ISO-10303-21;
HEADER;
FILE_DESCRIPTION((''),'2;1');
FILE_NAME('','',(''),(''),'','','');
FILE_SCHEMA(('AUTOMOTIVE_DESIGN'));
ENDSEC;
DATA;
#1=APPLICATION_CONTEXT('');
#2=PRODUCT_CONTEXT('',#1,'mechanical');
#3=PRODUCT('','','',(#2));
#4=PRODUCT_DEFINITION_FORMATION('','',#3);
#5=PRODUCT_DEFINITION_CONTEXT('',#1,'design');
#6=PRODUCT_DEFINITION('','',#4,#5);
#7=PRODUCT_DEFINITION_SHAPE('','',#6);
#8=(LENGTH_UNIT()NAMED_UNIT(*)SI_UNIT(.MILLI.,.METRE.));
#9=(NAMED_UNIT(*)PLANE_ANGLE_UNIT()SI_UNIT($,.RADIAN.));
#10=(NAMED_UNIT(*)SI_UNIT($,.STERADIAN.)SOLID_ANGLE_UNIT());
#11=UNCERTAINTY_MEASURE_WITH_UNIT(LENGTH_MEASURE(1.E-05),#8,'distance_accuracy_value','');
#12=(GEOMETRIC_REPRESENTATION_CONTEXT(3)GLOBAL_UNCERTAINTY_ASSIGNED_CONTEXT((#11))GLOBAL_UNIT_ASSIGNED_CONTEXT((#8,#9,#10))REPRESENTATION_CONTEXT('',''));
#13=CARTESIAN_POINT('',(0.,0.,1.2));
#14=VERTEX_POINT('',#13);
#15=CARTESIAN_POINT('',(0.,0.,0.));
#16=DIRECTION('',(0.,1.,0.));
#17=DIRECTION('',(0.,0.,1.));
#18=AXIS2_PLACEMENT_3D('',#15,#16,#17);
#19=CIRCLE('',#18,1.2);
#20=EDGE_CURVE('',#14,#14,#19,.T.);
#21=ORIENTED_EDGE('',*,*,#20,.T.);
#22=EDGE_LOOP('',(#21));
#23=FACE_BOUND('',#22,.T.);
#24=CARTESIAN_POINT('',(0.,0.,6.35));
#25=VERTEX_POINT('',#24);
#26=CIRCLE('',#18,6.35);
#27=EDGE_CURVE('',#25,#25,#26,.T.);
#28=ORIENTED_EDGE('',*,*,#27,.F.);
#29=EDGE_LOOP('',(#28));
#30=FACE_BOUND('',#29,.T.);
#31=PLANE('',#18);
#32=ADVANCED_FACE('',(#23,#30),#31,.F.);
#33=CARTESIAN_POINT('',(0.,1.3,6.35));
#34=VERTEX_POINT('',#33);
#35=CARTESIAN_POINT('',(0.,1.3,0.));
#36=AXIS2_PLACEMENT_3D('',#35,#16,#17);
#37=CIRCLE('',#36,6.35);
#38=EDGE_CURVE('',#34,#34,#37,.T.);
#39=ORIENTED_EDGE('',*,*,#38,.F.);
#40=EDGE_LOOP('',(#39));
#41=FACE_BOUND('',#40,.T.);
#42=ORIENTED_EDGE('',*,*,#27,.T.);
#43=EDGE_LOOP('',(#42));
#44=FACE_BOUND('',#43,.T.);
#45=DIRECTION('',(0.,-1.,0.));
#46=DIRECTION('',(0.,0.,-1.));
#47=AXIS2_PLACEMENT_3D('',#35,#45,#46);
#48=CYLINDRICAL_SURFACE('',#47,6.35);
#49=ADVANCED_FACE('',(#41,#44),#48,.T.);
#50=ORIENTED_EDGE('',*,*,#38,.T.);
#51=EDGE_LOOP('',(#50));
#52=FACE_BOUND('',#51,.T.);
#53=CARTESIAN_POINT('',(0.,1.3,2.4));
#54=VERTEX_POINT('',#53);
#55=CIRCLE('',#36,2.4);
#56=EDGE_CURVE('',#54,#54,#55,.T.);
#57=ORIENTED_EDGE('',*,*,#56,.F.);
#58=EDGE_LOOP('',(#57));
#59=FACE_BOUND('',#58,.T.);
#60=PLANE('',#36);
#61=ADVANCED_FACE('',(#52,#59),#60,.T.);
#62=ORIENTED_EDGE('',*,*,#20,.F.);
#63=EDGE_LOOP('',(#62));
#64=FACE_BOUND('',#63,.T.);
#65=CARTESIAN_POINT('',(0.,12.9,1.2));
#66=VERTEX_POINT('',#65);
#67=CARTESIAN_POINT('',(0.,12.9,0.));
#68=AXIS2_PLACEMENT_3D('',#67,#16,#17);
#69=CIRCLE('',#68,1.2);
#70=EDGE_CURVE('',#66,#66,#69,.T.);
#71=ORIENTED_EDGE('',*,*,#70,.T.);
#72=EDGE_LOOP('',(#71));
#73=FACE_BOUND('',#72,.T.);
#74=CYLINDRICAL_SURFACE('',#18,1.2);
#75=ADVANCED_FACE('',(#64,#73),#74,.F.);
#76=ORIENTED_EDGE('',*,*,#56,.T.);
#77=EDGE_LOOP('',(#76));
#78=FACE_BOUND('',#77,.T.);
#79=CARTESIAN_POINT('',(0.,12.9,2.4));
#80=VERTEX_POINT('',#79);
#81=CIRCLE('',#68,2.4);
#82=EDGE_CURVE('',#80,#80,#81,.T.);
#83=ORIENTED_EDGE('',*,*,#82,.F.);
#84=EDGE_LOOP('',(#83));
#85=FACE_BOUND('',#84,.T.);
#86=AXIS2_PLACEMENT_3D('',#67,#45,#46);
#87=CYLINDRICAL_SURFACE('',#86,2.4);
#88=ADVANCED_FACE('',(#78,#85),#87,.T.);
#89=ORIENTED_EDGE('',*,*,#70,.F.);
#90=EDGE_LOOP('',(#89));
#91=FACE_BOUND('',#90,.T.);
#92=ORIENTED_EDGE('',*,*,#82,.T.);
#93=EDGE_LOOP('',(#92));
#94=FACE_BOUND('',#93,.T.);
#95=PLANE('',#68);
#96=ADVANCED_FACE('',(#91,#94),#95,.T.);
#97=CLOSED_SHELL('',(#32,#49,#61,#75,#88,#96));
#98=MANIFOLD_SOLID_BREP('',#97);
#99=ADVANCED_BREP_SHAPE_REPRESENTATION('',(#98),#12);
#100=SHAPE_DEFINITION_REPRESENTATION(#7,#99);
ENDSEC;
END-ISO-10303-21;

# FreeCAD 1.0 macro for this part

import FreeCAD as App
import Part
import Sketcher

V = App.Vector

doc = App.newDocument("Part")
body = doc.addObject("PartDesign::Body", "Body")

# Sketch on XZ plane
sketch1 = body.newObject("Sketcher::SketchObject", "Sketch")
sketch1.AttachmentSupport = (doc.getObject("XZ_Plane"), [""])
sketch1.MapMode = "FlatFace"
sketch1.addGeometry(Part.Circle(V(0, 0, 0), V(0, 0, 1), 6), False)
sketch1.addConstraint([
    Sketcher.Constraint("Coincident", 0, 3, -1, 1),
    Sketcher.Constraint("Diameter", 0, 12.7),
])
pad1 = body.newObject("PartDesign::Pad", "Pad")
pad1.Profile = sketch1
pad1.Length = 1.3
pad1.Reversed = True

# Sketch on XZ plane
sketch2 = body.newObject("Sketcher::SketchObject", "Sketch001")
sketch2.AttachmentSupport = (doc.getObject("XZ_Plane"), [""])
sketch2.MapMode = "FlatFace"
sketch2.AttachmentOffset = App.Placement(V(0, 0, -1.3), App.Rotation())
sketch2.addGeometry(Part.Circle(V(0, 0, 0), V(0, 0, 1), 2.4), False)
sketch2.addConstraint([
    Sketcher.Constraint("Coincident", 0, 3, -1, 1),
    Sketcher.Constraint("Diameter", 0, 4.8),
])
pad2 = body.newObject("PartDesign::Pad", "Pad001")
pad2.Profile = sketch2
pad2.Length = 11.6
pad2.Reversed = True

# Sketch on XZ plane
sketch3 = body.newObject("Sketcher::SketchObject", "Sketch002")
sketch3.AttachmentSupport = (doc.getObject("XZ_Plane"), [""])
sketch3.MapMode = "FlatFace"
sketch3.AttachmentOffset = App.Placement(V(0, 0, -12.9), App.Rotation())
sketch3.addGeometry(Part.Circle(V(0, 0, 0), V(0, 0, 1), 1.2), False)
sketch3.addConstraint([
    Sketcher.Constraint("Coincident", 0, 3, -1, 1),
    Sketcher.Constraint("Diameter", 0, 2.4),
])
pocket1 = body.newObject("PartDesign::Pocket", "Pocket")
pocket1.Profile = sketch3
pocket1.Type = "ThroughAll"
pocket1.Reversed = True

doc.recompute()
